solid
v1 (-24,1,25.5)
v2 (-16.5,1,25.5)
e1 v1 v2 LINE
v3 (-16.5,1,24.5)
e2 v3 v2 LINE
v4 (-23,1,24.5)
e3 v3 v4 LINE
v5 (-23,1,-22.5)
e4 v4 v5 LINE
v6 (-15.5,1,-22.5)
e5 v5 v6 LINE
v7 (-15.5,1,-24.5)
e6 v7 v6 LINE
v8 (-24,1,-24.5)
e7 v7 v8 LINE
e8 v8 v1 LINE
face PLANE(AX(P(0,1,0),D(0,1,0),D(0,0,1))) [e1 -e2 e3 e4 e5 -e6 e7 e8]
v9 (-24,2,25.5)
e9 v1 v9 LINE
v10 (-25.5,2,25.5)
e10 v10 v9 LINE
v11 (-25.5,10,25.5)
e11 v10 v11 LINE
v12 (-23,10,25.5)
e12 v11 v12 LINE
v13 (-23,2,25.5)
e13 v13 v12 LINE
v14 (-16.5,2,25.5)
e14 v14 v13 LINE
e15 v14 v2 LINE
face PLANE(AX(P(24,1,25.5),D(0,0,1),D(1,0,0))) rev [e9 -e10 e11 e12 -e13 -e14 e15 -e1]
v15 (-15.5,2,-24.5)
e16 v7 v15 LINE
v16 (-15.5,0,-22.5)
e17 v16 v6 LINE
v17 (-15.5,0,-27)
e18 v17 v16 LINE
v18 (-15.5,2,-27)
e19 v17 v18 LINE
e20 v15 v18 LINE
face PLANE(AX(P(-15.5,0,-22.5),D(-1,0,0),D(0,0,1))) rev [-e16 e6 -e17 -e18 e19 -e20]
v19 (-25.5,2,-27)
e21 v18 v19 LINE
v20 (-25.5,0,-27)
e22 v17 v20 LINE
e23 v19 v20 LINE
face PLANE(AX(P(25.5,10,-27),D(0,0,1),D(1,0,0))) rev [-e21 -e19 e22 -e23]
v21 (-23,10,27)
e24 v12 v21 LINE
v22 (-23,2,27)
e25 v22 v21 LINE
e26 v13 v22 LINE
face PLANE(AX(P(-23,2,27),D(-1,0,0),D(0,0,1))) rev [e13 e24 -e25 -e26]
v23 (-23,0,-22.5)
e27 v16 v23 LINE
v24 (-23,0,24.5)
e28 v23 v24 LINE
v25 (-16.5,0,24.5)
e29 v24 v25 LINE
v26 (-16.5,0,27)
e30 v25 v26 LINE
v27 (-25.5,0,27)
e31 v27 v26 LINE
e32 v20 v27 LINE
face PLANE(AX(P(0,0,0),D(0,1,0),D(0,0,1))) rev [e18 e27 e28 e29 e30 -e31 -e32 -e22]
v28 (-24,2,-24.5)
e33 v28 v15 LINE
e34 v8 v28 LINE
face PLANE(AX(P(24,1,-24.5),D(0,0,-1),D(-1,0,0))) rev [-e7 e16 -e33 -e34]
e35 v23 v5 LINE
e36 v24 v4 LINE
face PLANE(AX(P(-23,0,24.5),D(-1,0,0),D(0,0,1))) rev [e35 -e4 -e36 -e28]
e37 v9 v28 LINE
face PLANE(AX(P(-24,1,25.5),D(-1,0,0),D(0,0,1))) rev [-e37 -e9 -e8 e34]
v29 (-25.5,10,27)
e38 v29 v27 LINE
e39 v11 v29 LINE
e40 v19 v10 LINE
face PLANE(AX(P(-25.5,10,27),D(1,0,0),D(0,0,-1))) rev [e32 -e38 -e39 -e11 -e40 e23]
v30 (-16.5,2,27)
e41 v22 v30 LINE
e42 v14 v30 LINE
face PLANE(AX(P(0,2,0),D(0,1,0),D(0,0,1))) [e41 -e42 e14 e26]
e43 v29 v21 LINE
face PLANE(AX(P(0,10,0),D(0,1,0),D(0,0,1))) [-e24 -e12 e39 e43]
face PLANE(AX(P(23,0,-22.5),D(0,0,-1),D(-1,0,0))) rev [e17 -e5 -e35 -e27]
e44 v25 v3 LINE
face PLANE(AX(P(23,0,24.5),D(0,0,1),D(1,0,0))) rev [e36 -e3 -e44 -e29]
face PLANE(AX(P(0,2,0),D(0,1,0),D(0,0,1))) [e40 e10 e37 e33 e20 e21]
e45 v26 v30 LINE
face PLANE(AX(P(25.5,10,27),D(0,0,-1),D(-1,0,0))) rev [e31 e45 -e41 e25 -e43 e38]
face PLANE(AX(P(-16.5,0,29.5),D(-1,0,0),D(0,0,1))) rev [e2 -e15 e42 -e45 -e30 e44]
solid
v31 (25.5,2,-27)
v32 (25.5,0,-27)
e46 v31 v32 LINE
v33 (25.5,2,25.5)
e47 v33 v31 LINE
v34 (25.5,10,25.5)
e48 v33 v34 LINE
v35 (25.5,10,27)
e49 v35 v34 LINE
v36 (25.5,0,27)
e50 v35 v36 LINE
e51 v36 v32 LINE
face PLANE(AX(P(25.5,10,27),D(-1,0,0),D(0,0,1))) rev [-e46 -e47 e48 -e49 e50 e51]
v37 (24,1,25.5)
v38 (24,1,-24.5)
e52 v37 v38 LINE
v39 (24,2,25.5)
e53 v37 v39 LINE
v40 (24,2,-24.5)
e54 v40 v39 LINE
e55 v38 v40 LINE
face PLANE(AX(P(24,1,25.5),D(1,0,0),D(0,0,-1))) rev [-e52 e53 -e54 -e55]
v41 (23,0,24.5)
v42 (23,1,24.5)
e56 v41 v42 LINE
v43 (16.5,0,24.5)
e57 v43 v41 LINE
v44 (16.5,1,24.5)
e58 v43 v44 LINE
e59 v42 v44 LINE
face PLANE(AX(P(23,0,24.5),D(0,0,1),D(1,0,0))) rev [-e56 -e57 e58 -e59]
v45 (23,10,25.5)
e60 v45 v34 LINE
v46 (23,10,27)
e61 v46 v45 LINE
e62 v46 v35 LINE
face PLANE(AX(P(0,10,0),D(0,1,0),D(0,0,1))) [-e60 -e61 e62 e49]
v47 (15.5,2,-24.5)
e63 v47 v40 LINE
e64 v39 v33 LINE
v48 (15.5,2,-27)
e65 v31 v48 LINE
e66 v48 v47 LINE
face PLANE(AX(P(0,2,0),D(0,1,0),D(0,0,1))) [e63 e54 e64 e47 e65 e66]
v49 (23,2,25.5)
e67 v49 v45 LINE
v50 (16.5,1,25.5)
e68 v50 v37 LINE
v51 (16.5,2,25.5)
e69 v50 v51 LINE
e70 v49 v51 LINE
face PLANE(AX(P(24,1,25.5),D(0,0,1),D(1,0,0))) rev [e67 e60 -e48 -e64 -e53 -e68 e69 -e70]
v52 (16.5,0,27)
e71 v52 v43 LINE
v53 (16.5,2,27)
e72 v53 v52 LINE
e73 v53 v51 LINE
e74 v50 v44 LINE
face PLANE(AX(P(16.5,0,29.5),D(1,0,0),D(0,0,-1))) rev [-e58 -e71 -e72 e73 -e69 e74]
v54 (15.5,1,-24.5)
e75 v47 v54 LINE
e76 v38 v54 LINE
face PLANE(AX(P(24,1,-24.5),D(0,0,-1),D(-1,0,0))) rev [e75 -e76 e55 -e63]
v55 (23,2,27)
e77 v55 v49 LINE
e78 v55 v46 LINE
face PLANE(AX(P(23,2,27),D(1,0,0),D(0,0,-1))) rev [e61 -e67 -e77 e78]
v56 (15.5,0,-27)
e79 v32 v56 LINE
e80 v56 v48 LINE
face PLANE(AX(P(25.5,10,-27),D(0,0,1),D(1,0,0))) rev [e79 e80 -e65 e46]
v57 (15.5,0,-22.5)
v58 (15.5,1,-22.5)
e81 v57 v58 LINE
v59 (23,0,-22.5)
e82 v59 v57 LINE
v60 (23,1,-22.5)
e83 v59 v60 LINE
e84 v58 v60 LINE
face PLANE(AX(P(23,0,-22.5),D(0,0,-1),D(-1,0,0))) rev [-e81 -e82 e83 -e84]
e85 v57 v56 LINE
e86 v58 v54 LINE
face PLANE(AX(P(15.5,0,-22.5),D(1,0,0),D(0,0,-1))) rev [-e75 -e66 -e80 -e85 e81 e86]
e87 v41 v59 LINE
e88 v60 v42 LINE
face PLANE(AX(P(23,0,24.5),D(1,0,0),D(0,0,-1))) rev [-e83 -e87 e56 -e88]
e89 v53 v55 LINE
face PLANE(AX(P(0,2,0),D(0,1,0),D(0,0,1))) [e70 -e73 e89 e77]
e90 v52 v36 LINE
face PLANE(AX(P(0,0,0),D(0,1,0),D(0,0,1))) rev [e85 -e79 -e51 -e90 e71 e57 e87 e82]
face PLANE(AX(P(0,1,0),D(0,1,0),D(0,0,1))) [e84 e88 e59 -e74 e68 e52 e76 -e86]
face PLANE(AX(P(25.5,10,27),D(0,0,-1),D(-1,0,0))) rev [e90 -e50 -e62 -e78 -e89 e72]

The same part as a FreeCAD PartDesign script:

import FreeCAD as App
import Part
import Sketcher
from FreeCAD import Vector
Q = App.Units.Quantity

doc = App.newDocument("Part")
body = doc.addObject("PartDesign::Body", "Body")
body.AllowCompound = True

# Sketch on XZ plane
sketch1 = doc.addObject("Sketcher::SketchObject", "Sketch")
body.addObject(sketch1)
sketch1.AttachmentSupport = (doc.XZ_Plane, [""])
sketch1.MapMode = "FlatFace"
sketch1.addGeometry([
    Part.LineSegment(Vector(-26, -27, 0), Vector(-26, 27, 0)),
    Part.LineSegment(Vector(-26, 27, 0), Vector(26, 27, 0)),
    Part.LineSegment(Vector(26, 27, 0), Vector(26, -27, 0)),
    Part.LineSegment(Vector(26, -27, 0), Vector(-26, -27, 0)),
], False)
sketch1.addConstraint([
    Sketcher.Constraint("Coincident", 0, 2, 1, 1),
    Sketcher.Constraint("Coincident", 1, 2, 2, 1),
    Sketcher.Constraint("Coincident", 2, 2, 3, 1),
    Sketcher.Constraint("Coincident", 3, 2, 0, 1),
    Sketcher.Constraint("Vertical", 0),
    Sketcher.Constraint("Horizontal", 1),
    Sketcher.Constraint("Vertical", 2),
    Sketcher.Constraint("Horizontal", 3),
    Sketcher.Constraint("Symmetric", 0, 2, 2, 2, -1, 1),
    Sketcher.Constraint("DistanceX", 1, 1, 1, 2, Q("51 mm")),
    Sketcher.Constraint("DistanceY", 0, 1, 0, 2, Q("54 mm")),
])
pad1 = doc.addObject("PartDesign::Pad", "Pad")
body.addObject(pad1)
pad1.Profile = sketch1
pad1.Length = 10
pad1.Reversed = True

# Sketch on XZ plane
sketch2 = doc.addObject("Sketcher::SketchObject", "Sketch001")
body.addObject(sketch2)
sketch2.AttachmentSupport = (doc.XZ_Plane, [""])
sketch2.MapMode = "FlatFace"
sketch2.AttachmentOffset = App.Placement(Vector(0, 0, -10), App.Rotation())
sketch2.addGeometry([
    Part.LineSegment(Vector(-23, -22, 0), Vector(-23, 24, 0)),
    Part.LineSegment(Vector(-23, 24, 0), Vector(23, 24, 0)),
    Part.LineSegment(Vector(23, 24, 0), Vector(23, -22, 0)),
    Part.LineSegment(Vector(23, -22, 0), Vector(-23, -22, 0)),
], False)
sketch2.addConstraint([
    Sketcher.Constraint("Coincident", 0, 2, 1, 1),
    Sketcher.Constraint("Coincident", 1, 2, 2, 1),
    Sketcher.Constraint("Coincident", 2, 2, 3, 1),
    Sketcher.Constraint("Coincident", 3, 2, 0, 1),
    Sketcher.Constraint("Vertical", 0),
    Sketcher.Constraint("Horizontal", 1),
    Sketcher.Constraint("Vertical", 2),
    Sketcher.Constraint("Horizontal", 3),
    Sketcher.Constraint("DistanceX", 1, 1, 1, 2, Q("46 mm")),
    Sketcher.Constraint("DistanceY", 0, 1, 0, 2, Q("47 mm")),
    Sketcher.Constraint("DistanceX", 0, 2, -1, 1, Q("23 mm")),
    Sketcher.Constraint("DistanceY", -1, 1, 0, 2, Q("24.5 mm")),
])
pocket1 = doc.addObject("PartDesign::Pocket", "Pocket")
body.addObject(pocket1)
pocket1.Profile = sketch2
pocket1.Type = "ThroughAll"
pocket1.Reversed = True

# Sketch on XZ plane
sketch3 = doc.addObject("Sketcher::SketchObject", "Sketch002")
body.addObject(sketch3)
sketch3.AttachmentSupport = (doc.XZ_Plane, [""])
sketch3.MapMode = "FlatFace"
sketch3.AttachmentOffset = App.Placement(Vector(0, 0, -10), App.Rotation())
sketch3.addGeometry([
    Part.LineSegment(Vector(-24, -24, 0), Vector(-24, 26, 0)),
    Part.LineSegment(Vector(-24, 26, 0), Vector(24, 26, 0)),
    Part.LineSegment(Vector(24, 26, 0), Vector(24, -24, 0)),
    Part.LineSegment(Vector(24, -24, 0), Vector(-24, -24, 0)),
], False)
sketch3.addConstraint([
    Sketcher.Constraint("Coincident", 0, 2, 1, 1),
    Sketcher.Constraint("Coincident", 1, 2, 2, 1),
    Sketcher.Constraint("Coincident", 2, 2, 3, 1),
    Sketcher.Constraint("Coincident", 3, 2, 0, 1),
    Sketcher.Constraint("Vertical", 0),
    Sketcher.Constraint("Horizontal", 1),
    Sketcher.Constraint("Vertical", 2),
    Sketcher.Constraint("Horizontal", 3),
    Sketcher.Constraint("DistanceX", 1, 1, 1, 2, Q("48 mm")),
    Sketcher.Constraint("DistanceY", 0, 1, 0, 2, Q("50 mm")),
    Sketcher.Constraint("DistanceX", 0, 2, -1, 1, Q("24 mm")),
    Sketcher.Constraint("DistanceY", -1, 1, 0, 2, Q("25.5 mm")),
])
pocket2 = doc.addObject("PartDesign::Pocket", "Pocket001")
body.addObject(pocket2)
pocket2.Profile = sketch3
pocket2.Length = 9
pocket2.Reversed = True

# Sketch on XZ plane
sketch4 = doc.addObject("Sketcher::SketchObject", "Sketch003")
body.addObject(sketch4)
sketch4.AttachmentSupport = (doc.XZ_Plane, [""])
sketch4.MapMode = "FlatFace"
sketch4.AttachmentOffset = App.Placement(Vector(0, 0, -10), App.Rotation())
sketch4.addGeometry([
    Part.LineSegment(Vector(-15.5, -27, 0), Vector(-15.5, -22.5, 0)),
    Part.LineSegment(Vector(-15.5, -22.5, 0), Vector(15.5, -22.5, 0)),
    Part.LineSegment(Vector(15.5, -22.5, 0), Vector(15.5, -27, 0)),
    Part.LineSegment(Vector(15.5, -27, 0), Vector(-15.5, -27, 0)),
], False)
sketch4.addConstraint([
    Sketcher.Constraint("Coincident", 0, 2, 1, 1),
    Sketcher.Constraint("Coincident", 1, 2, 2, 1),
    Sketcher.Constraint("Coincident", 2, 2, 3, 1),
    Sketcher.Constraint("Coincident", 3, 2, 0, 1),
    Sketcher.Constraint("Vertical", 0),
    Sketcher.Constraint("Horizontal", 1),
    Sketcher.Constraint("Vertical", 2),
    Sketcher.Constraint("Horizontal", 3),
    Sketcher.Constraint("DistanceX", 1, 1, 1, 2, Q("31 mm")),
    Sketcher.Constraint("DistanceY", 0, 1, 0, 2, Q("4.5 mm")),
    Sketcher.Constraint("DistanceY", 2, 2, -1, 1, Q("27 mm")),
    Sketcher.Constraint("DistanceX", 0, 2, -1, 1, Q("15.5 mm")),
])
pocket3 = doc.addObject("PartDesign::Pocket", "Pocket002")
body.addObject(pocket3)
pocket3.Profile = sketch4
pocket3.Type = "ThroughAll"
pocket3.Reversed = True

# Sketch on XZ plane
sketch5 = doc.addObject("Sketcher::SketchObject", "Sketch004")
body.addObject(sketch5)
sketch5.AttachmentSupport = (doc.XZ_Plane, [""])
sketch5.MapMode = "FlatFace"
sketch5.AttachmentOffset = App.Placement(Vector(0, 0, -10), App.Rotation())
sketch5.addGeometry([
    Part.LineSegment(Vector(-24, -27, 0), Vector(-24, -22.5, 0)),
    Part.LineSegment(Vector(-24, -22.5, 0), Vector(24, -22.5, 0)),
    Part.LineSegment(Vector(24, -22.5, 0), Vector(24, -27, 0)),
    Part.LineSegment(Vector(24, -27, 0), Vector(-24, -27, 0)),
], False)
sketch5.addConstraint([
    Sketcher.Constraint("Coincident", 0, 2, 1, 1),
    Sketcher.Constraint("Coincident", 1, 2, 2, 1),
    Sketcher.Constraint("Coincident", 2, 2, 3, 1),
    Sketcher.Constraint("Coincident", 3, 2, 0, 1),
    Sketcher.Constraint("Vertical", 0),
    Sketcher.Constraint("Horizontal", 1),
    Sketcher.Constraint("Vertical", 2),
    Sketcher.Constraint("Horizontal", 3),
    Sketcher.Constraint("DistanceX", 1, 1, 1, 2, Q("48 mm")),
    Sketcher.Constraint("DistanceY", 0, 1, 0, 2, Q("4.5 mm")),
    Sketcher.Constraint("DistanceX", 0, 2, -1, 1, Q("24 mm")),
    Sketcher.Constraint("DistanceY", 2, 2, -1, 1, Q("27 mm")),
])
pocket4 = doc.addObject("PartDesign::Pocket", "Pocket003")
body.addObject(pocket4)
pocket4.Profile = sketch5
pocket4.Length = 8
pocket4.Reversed = True

# Sketch on XZ plane
sketch6 = doc.addObject("Sketcher::SketchObject", "Sketch005")
body.addObject(sketch6)
sketch6.AttachmentSupport = (doc.XZ_Plane, [""])
sketch6.MapMode = "FlatFace"
sketch6.AttachmentOffset = App.Placement(Vector(0, 0, -10), App.Rotation())
sketch6.addGeometry([
    Part.LineSegment(Vector(-25.5, -27, 0), Vector(-25.5, 25.5, 0)),  # 0
    Part.LineSegment(Vector(-25.5, 25.5, 0), Vector(-24, 25.5, 0)),  # 1
    Part.LineSegment(Vector(-24, 25.5, 0), Vector(-24, -27, 0)),  # 2
    Part.LineSegment(Vector(-24, -27, 0), Vector(-25.5, -27, 0)),  # 3
    Part.LineSegment(Vector(24, -27, 0), Vector(24, 25.5, 0)),  # 4
    Part.LineSegment(Vector(24, 25.5, 0), Vector(25.5, 25.5, 0)),  # 5
    Part.LineSegment(Vector(25.5, 25.5, 0), Vector(25.5, -27, 0)),  # 6
    Part.LineSegment(Vector(25.5, -27, 0), Vector(24, -27, 0)),  # 7
], False)
sketch6.addConstraint([
    Sketcher.Constraint("Coincident", 0, 2, 1, 1),
    Sketcher.Constraint("Coincident", 1, 2, 2, 1),
    Sketcher.Constraint("Coincident", 2, 2, 3, 1),
    Sketcher.Constraint("Coincident", 3, 2, 0, 1),
    Sketcher.Constraint("Coincident", 4, 2, 5, 1),
    Sketcher.Constraint("Coincident", 5, 2, 6, 1),
    Sketcher.Constraint("Coincident", 6, 2, 7, 1),
    Sketcher.Constraint("Coincident", 7, 2, 4, 1),
    Sketcher.Constraint("Vertical", 0),
    Sketcher.Constraint("Horizontal", 1),
    Sketcher.Constraint("Vertical", 2),
    Sketcher.Constraint("Horizontal", 3),
    Sketcher.Constraint("Vertical", 4),
    Sketcher.Constraint("Horizontal", 5),
    Sketcher.Constraint("Vertical", 6),
    Sketcher.Constraint("Horizontal", 7),
    Sketcher.Constraint("Symmetric", 1, 2, 4, 2, -2),
    Sketcher.Constraint("Symmetric", 3, 2, 6, 2, -2),
    Sketcher.Constraint("DistanceX", 1, 1, 1, 2, Q("1.5 mm")),
    Sketcher.Constraint("DistanceY", 0, 1, 0, 2, Q("52.5 mm")),
    Sketcher.Constraint("DistanceX", 1, 2, -1, 1, Q("24 mm")),
    Sketcher.Constraint("DistanceY", 2, 2, -1, 1, Q("27 mm")),
])
pocket5 = doc.addObject("PartDesign::Pocket", "Pocket004")
body.addObject(pocket5)
pocket5.Profile = sketch6
pocket5.Length = 8
pocket5.Reversed = True

# Sketch on XZ plane
sketch7 = doc.addObject("Sketcher::SketchObject", "Sketch006")
body.addObject(sketch7)
sketch7.AttachmentSupport = (doc.XZ_Plane, [""])
sketch7.MapMode = "FlatFace"
sketch7.AttachmentOffset = App.Placement(Vector(0, 0, -10), App.Rotation())
sketch7.addGeometry([
    Part.LineSegment(Vector(-23, 25.5, 0), Vector(-23, 27, 0)),
    Part.LineSegment(Vector(-23, 27, 0), Vector(23, 27, 0)),
    Part.LineSegment(Vector(23, 27, 0), Vector(23, 25.5, 0)),
    Part.LineSegment(Vector(23, 25.5, 0), Vector(-23, 25.5, 0)),
], False)
sketch7.addConstraint([
    Sketcher.Constraint("Coincident", 0, 2, 1, 1),
    Sketcher.Constraint("Coincident", 1, 2, 2, 1),
    Sketcher.Constraint("Coincident", 2, 2, 3, 1),
    Sketcher.Constraint("Coincident", 3, 2, 0, 1),
    Sketcher.Constraint("Vertical", 0),
    Sketcher.Constraint("Horizontal", 1),
    Sketcher.Constraint("Vertical", 2),
    Sketcher.Constraint("Horizontal", 3),
    Sketcher.Constraint("DistanceX", 1, 1, 1, 2, Q("46 mm")),
    Sketcher.Constraint("DistanceY", 0, 1, 0, 2, Q("1.5 mm")),
    Sketcher.Constraint("DistanceX", 0, 2, -1, 1, Q("23 mm")),
    Sketcher.Constraint("DistanceY", -1, 1, 0, 2, Q("27 mm")),
])
pocket6 = doc.addObject("PartDesign::Pocket", "Pocket005")
body.addObject(pocket6)
pocket6.Profile = sketch7
pocket6.Length = 8
pocket6.Reversed = True

# Sketch on XZ plane
sketch8 = doc.addObject("Sketcher::SketchObject", "Sketch007")
body.addObject(sketch8)
sketch8.AttachmentSupport = (doc.XZ_Plane, [""])
sketch8.MapMode = "FlatFace"
sketch8.AttachmentOffset = App.Placement(Vector(0, 0, -2), App.Rotation())
sketch8.addGeometry([
    Part.LineSegment(Vector(-16, 24, 0), Vector(-16, 30, 0)),
    Part.LineSegment(Vector(-16, 30, 0), Vector(16, 30, 0)),
    Part.LineSegment(Vector(16, 30, 0), Vector(16, 24, 0)),
    Part.LineSegment(Vector(16, 24, 0), Vector(-16, 24, 0)),
], False)
sketch8.addConstraint([
    Sketcher.Constraint("Coincident", 0, 2, 1, 1),
    Sketcher.Constraint("Coincident", 1, 2, 2, 1),
    Sketcher.Constraint("Coincident", 2, 2, 3, 1),
    Sketcher.Constraint("Coincident", 3, 2, 0, 1),
    Sketcher.Constraint("Vertical", 0),
    Sketcher.Constraint("Horizontal", 1),
    Sketcher.Constraint("Vertical", 2),
    Sketcher.Constraint("Horizontal", 3),
    Sketcher.Constraint("DistanceX", 1, 1, 1, 2, Q("33 mm")),
    Sketcher.Constraint("DistanceY", 0, 1, 0, 2, Q("5 mm")),
    Sketcher.Constraint("DistanceX", 0, 2, -1, 1, Q("16.5 mm")),
    Sketcher.Constraint("DistanceY", -1, 1, 0, 2, Q("29.5 mm")),
])
pocket7 = doc.addObject("PartDesign::Pocket", "Pocket006")
body.addObject(pocket7)
pocket7.Profile = sketch8
pocket7.Type = "ThroughAll"
pocket7.Reversed = True

doc.recompute()
